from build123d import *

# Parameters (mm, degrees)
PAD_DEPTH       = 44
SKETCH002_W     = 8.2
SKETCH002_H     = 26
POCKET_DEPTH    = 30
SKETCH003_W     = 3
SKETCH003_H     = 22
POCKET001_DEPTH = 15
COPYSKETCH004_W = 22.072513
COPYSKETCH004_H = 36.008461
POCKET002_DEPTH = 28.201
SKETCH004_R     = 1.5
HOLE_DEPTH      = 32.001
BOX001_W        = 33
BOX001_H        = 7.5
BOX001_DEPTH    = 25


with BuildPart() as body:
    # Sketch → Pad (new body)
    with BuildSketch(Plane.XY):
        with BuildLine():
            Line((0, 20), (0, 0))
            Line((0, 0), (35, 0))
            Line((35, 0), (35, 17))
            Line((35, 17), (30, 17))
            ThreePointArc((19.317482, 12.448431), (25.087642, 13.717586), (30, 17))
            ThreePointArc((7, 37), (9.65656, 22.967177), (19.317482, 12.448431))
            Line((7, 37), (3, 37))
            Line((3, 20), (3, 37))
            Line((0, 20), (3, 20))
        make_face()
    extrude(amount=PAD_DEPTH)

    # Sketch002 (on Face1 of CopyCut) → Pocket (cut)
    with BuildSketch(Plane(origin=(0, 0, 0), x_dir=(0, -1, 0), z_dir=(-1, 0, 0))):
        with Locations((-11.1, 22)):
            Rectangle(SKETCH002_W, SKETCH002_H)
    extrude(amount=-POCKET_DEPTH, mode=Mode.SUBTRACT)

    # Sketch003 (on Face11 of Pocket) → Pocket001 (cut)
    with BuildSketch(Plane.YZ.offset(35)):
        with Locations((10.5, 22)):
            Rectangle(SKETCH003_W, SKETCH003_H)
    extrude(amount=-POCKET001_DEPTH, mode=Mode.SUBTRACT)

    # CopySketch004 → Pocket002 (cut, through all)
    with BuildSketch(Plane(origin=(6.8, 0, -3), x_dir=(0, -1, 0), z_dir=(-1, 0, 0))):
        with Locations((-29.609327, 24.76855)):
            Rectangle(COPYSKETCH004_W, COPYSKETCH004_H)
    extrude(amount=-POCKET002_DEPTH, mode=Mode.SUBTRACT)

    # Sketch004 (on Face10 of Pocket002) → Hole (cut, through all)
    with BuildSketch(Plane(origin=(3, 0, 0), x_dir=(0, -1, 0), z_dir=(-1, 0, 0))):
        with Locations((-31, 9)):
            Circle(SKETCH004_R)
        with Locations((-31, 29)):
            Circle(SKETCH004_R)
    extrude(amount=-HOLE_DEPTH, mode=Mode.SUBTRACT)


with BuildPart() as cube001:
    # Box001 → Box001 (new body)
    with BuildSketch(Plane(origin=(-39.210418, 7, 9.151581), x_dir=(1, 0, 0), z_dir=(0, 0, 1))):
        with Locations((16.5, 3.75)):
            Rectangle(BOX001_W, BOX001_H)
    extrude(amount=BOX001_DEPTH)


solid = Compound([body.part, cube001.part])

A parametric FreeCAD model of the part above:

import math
import FreeCAD as App
import Part
import Sketcher


def add_polygon(sketch, points):
    """Adds a closed chain of lines whose ends are joined by coincident constraints."""
    first, n = sketch.GeometryCount, len(points)
    for a, b in zip(points, points[1:] + points[:1]):
        sketch.addGeometry(Part.LineSegment(App.Vector(*a, 0), App.Vector(*b, 0)), False)
    for i in range(n):
        sketch.addConstraint(Sketcher.Constraint("Coincident", first + i, 2, first + (i + 1) % n, 1))

doc = App.newDocument("Part")
params = doc.addObject("Spreadsheet::Sheet", "Params")
for row, (alias, value) in enumerate([
    ("sketch1_width", "35 mm"),
    ("sketch1_width2", "5 mm"),
    ("sketch1_width3", "4 mm"),
    ("sketch1_width4", "3 mm"),
    ("sketch1_height", "20 mm"),
    ("pad1_length", "44 mm"),
    ("sketch2_height", "26 mm"),
    ("sketch2_width", "8.2 mm"),
    ("pocket1_length", "30 mm"),
    ("sketch3_width", "3 mm"),
    ("sketch3_height", "22 mm"),
    ("pocket2_length", "15 mm"),
    ("sketch5_diameter", "3 mm"),
    ("sketch6_width", "33 mm"),
    ("sketch6_height", "7.5 mm"),
    ("pad2_length", "25 mm"),
], start=1):
    params.set(f"A{row}", alias)
    params.set(f"B{row}", "=" + value)
    params.setAlias(f"B{row}", alias)

body = doc.addObject("PartDesign::Body", "Body")

# Sketch on XY plane
sketch1 = body.newObject("Sketcher::SketchObject", "Sketch")
sketch1.AttachmentSupport = (doc.getObject("XY_Plane"), [""])
sketch1.MapMode = "FlatFace"
sketch1.addGeometry(Part.LineSegment(App.Vector(0, 20, 0), App.Vector(0, 0, 0)), False)
sketch1.addGeometry(Part.LineSegment(App.Vector(0, 0, 0), App.Vector(35, 0, 0)), False)
sketch1.addGeometry(Part.LineSegment(App.Vector(35, 0, 0), App.Vector(35, 17, 0)), False)
sketch1.addGeometry(Part.LineSegment(App.Vector(35, 17, 0), App.Vector(30, 17, 0)), False)
sketch1.addGeometry(Part.ArcOfCircle(Part.Circle(App.Vector(18.8, 28.4, 0), App.Vector(0, 0, 1), 16), math.radians(-88), math.radians(-46)), False)
sketch1.addGeometry(Part.ArcOfCircle(Part.Circle(App.Vector(32.9, 34.6, 0), App.Vector(0, 0, 1), 26), math.radians(175), math.radians(238)), False)
sketch1.addGeometry(Part.LineSegment(App.Vector(7, 37, 0), App.Vector(3, 37, 0)), False)
sketch1.addGeometry(Part.LineSegment(App.Vector(3, 37, 0), App.Vector(3, 20, 0)), False)
sketch1.addGeometry(Part.LineSegment(App.Vector(3, 20, 0), App.Vector(0, 20, 0)), False)
sketch1.addConstraint(Sketcher.Constraint("Coincident", 0, 2, 1, 1))
sketch1.addConstraint(Sketcher.Constraint("Coincident", 1, 2, 2, 1))
sketch1.addConstraint(Sketcher.Constraint("Coincident", 2, 2, 3, 1))
sketch1.addConstraint(Sketcher.Constraint("Coincident", 3, 2, 4, 2))
sketch1.addConstraint(Sketcher.Constraint("Coincident", 4, 1, 5, 2))
sketch1.addConstraint(Sketcher.Constraint("Coincident", 5, 1, 6, 1))
sketch1.addConstraint(Sketcher.Constraint("Coincident", 6, 2, 7, 1))
sketch1.addConstraint(Sketcher.Constraint("Coincident", 7, 2, 8, 1))
sketch1.addConstraint(Sketcher.Constraint("Coincident", 8, 2, 0, 1))
sketch1.addConstraint(Sketcher.Constraint("Vertical", 0))
sketch1.addConstraint(Sketcher.Constraint("Horizontal", 1))
sketch1.addConstraint(Sketcher.Constraint("Vertical", 2))
sketch1.addConstraint(Sketcher.Constraint("Horizontal", 3))
sketch1.addConstraint(Sketcher.Constraint("Horizontal", 6))
sketch1.addConstraint(Sketcher.Constraint("Vertical", 7))
sketch1.addConstraint(Sketcher.Constraint("Horizontal", 8))
sketch1.addConstraint(Sketcher.Constraint("Coincident", 0, 2, -1, 1))
sketch1.addConstraint(Sketcher.Constraint("Equal", 2, 7))
sketch1.addConstraint(Sketcher.Constraint("DistanceX", 1, 1, 1, 2, 35.0))
sketch1.addConstraint(Sketcher.Constraint("DistanceX", 3, 2, 3, 1, 5.0))
sketch1.addConstraint(Sketcher.Constraint("DistanceX", 6, 2, 6, 1, 4.0))
sketch1.addConstraint(Sketcher.Constraint("DistanceX", 8, 2, 8, 1, 3.0))
sketch1.addConstraint(Sketcher.Constraint("DistanceY", 0, 2, 0, 1, 20.0))
sketch1.addConstraint(Sketcher.Constraint("DistanceY", 2, 1, 2, 2, 17.0))
sketch1.addConstraint(Sketcher.Constraint("Radius", 4, 15.950336))
sketch1.addConstraint(Sketcher.Constraint("Radius", 5, 26.029342))
sketch1.addConstraint(Sketcher.Constraint("DistanceX", -1, 1, 4, 3, 18.835441))
sketch1.addConstraint(Sketcher.Constraint("DistanceX", -1, 1, 4, 1, 19.317482))
sketch1.setExpression("Constraints[18]", "Params.sketch1_width")
sketch1.setExpression("Constraints[19]", "Params.sketch1_width2")
sketch1.setExpression("Constraints[20]", "Params.sketch1_width3")
sketch1.setExpression("Constraints[21]", "Params.sketch1_width4")
sketch1.setExpression("Constraints[22]", "Params.sketch1_height")
pad1 = body.newObject("PartDesign::Pad", "Pad")
pad1.Profile = sketch1
pad1.setExpression("Length", "Params.pad1_length")

# Sketch on YZ plane
sketch2 = body.newObject("Sketcher::SketchObject", "Sketch001")
sketch2.AttachmentSupport = (doc.getObject("YZ_Plane"), [""])
sketch2.MapMode = "FlatFace"
add_polygon(sketch2, [(15, 35), (15, 9), (7, 9), (7, 35)])  # lines 0-3
sketch2.addConstraint(Sketcher.Constraint("Vertical", 0))
sketch2.addConstraint(Sketcher.Constraint("Horizontal", 1))
sketch2.addConstraint(Sketcher.Constraint("Vertical", 2))
sketch2.addConstraint(Sketcher.Constraint("Horizontal", 3))
sketch2.addConstraint(Sketcher.Constraint("DistanceY", 0, 2, 0, 1, 26.0))
sketch2.addConstraint(Sketcher.Constraint("DistanceX", 1, 2, 1, 1, 8.2))
sketch2.addConstraint(Sketcher.Constraint("DistanceY", -1, 1, 0, 2, 9.0))
sketch2.addConstraint(Sketcher.Constraint("DistanceX", -1, 1, 1, 2, 7.0))
sketch2.setExpression("Constraints[8]", "Params.sketch2_height")
sketch2.setExpression("Constraints[9]", "Params.sketch2_width")
pocket1 = body.newObject("PartDesign::Pocket", "Pocket")
pocket1.Profile = sketch2
pocket1.setExpression("Length", "Params.pocket1_length")
pocket1.Reversed = True

# Sketch on YZ plane
sketch3 = body.newObject("Sketcher::SketchObject", "Sketch002")
sketch3.AttachmentSupport = (doc.getObject("YZ_Plane"), [""])
sketch3.MapMode = "FlatFace"
sketch3.AttachmentOffset = App.Placement(App.Vector(0, 0, 35), App.Rotation())
add_polygon(sketch3, [(9, 33), (9, 11), (12, 11), (12, 33)])  # lines 0-3
sketch3.addConstraint(Sketcher.Constraint("Vertical", 0))
sketch3.addConstraint(Sketcher.Constraint("Horizontal", 1))
sketch3.addConstraint(Sketcher.Constraint("Vertical", 2))
sketch3.addConstraint(Sketcher.Constraint("Horizontal", 3))
sketch3.addConstraint(Sketcher.Constraint("DistanceX", 1, 1, 1, 2, 3.0))
sketch3.addConstraint(Sketcher.Constraint("DistanceY", 0, 2, 0, 1, 22.0))
sketch3.addConstraint(Sketcher.Constraint("DistanceX", -1, 1, 0, 2, 9.0))
sketch3.addConstraint(Sketcher.Constraint("DistanceY", -1, 1, 0, 2, 11.0))
sketch3.setExpression("Constraints[8]", "Params.sketch3_width")
sketch3.setExpression("Constraints[9]", "Params.sketch3_height")
pocket2 = body.newObject("PartDesign::Pocket", "Pocket001")
pocket2.Profile = sketch3
pocket2.setExpression("Length", "Params.pocket2_length")

# Sketch on YZ plane
sketch4 = body.newObject("Sketcher::SketchObject", "Sketch003")
sketch4.AttachmentSupport = (doc.getObject("YZ_Plane"), [""])
sketch4.MapMode = "FlatFace"
sketch4.AttachmentOffset = App.Placement(App.Vector(0, 0, 6.8), App.Rotation())
add_polygon(sketch4, [(41, 40), (41, 4), (19, 4), (19, 40)])  # lines 0-3
sketch4.addConstraint(Sketcher.Constraint("Vertical", 0))
sketch4.addConstraint(Sketcher.Constraint("Horizontal", 1))
sketch4.addConstraint(Sketcher.Constraint("Vertical", 2))
sketch4.addConstraint(Sketcher.Constraint("Horizontal", 3))
sketch4.addConstraint(Sketcher.Constraint("DistanceY", 0, 2, 0, 1, 36.008461))
sketch4.addConstraint(Sketcher.Constraint("DistanceX", 1, 2, 1, 1, 22.072513))
sketch4.addConstraint(Sketcher.Constraint("DistanceY", -1, 1, 0, 2, 3.76432))
sketch4.addConstraint(Sketcher.Constraint("DistanceX", -1, 1, 1, 2, 18.573071))
pocket3 = body.newObject("PartDesign::Pocket", "Pocket002")
pocket3.Profile = sketch4
pocket3.Type = "ThroughAll"
pocket3.Reversed = True

# Sketch on YZ plane
sketch5 = body.newObject("Sketcher::SketchObject", "Sketch004")
sketch5.AttachmentSupport = (doc.getObject("YZ_Plane"), [""])
sketch5.MapMode = "FlatFace"
sketch5.AttachmentOffset = App.Placement(App.Vector(0, 0, 3), App.Rotation())
sketch5.addGeometry(Part.Circle(App.Vector(31, 9, 0), App.Vector(0, 0, 1), 1.5), False)
sketch5.addGeometry(Part.Circle(App.Vector(31, 29, 0), App.Vector(0, 0, 1), 1.5), False)
sketch5.addConstraint(Sketcher.Constraint("Equal", 0, 1))
sketch5.addConstraint(Sketcher.Constraint("Vertical", 0, 3, 1, 3))
sketch5.addConstraint(Sketcher.Constraint("Diameter", 0, 3.0))
sketch5.addConstraint(Sketcher.Constraint("DistanceX", -1, 1, 0, 3, 31.0))
sketch5.addConstraint(Sketcher.Constraint("DistanceY", -1, 1, 0, 3, 9.0))
sketch5.addConstraint(Sketcher.Constraint("DistanceY", -1, 1, 1, 3, 29.0))
sketch5.setExpression("Constraints[2]", "Params.sketch5_diameter")
pocket4 = body.newObject("PartDesign::Pocket", "Pocket003")
pocket4.Profile = sketch5
pocket4.Type = "ThroughAll"
pocket4.Reversed = True
body2 = doc.addObject("PartDesign::Body", "Body001")

# Sketch on XY plane
sketch6 = body2.newObject("Sketcher::SketchObject", "Sketch005")
sketch6.AttachmentSupport = (doc.getObject("XY_Plane001"), [""])
sketch6.MapMode = "FlatFace"
sketch6.AttachmentOffset = App.Placement(App.Vector(0, 0, 9.151581), App.Rotation())
add_polygon(sketch6, [(-39, 14), (-39, 7), (-6, 7), (-6, 14)])  # lines 0-3
sketch6.addConstraint(Sketcher.Constraint("Vertical", 0))
sketch6.addConstraint(Sketcher.Constraint("Horizontal", 1))
sketch6.addConstraint(Sketcher.Constraint("Vertical", 2))
sketch6.addConstraint(Sketcher.Constraint("Horizontal", 3))
sketch6.addConstraint(Sketcher.Constraint("DistanceX", 1, 1, 1, 2, 33.0))
sketch6.addConstraint(Sketcher.Constraint("DistanceY", 0, 2, 0, 1, 7.5))
sketch6.addConstraint(Sketcher.Constraint("DistanceY", -1, 1, 0, 2, 7.0))
sketch6.addConstraint(Sketcher.Constraint("DistanceX", 0, 2, -1, 1, 39.210418))
sketch6.setExpression("Constraints[8]", "Params.sketch6_width")
sketch6.setExpression("Constraints[9]", "Params.sketch6_height")
pad2 = body2.newObject("PartDesign::Pad", "Pad001")
pad2.Profile = sketch6
pad2.setExpression("Length", "Params.pad2_length")

doc.recompute()
